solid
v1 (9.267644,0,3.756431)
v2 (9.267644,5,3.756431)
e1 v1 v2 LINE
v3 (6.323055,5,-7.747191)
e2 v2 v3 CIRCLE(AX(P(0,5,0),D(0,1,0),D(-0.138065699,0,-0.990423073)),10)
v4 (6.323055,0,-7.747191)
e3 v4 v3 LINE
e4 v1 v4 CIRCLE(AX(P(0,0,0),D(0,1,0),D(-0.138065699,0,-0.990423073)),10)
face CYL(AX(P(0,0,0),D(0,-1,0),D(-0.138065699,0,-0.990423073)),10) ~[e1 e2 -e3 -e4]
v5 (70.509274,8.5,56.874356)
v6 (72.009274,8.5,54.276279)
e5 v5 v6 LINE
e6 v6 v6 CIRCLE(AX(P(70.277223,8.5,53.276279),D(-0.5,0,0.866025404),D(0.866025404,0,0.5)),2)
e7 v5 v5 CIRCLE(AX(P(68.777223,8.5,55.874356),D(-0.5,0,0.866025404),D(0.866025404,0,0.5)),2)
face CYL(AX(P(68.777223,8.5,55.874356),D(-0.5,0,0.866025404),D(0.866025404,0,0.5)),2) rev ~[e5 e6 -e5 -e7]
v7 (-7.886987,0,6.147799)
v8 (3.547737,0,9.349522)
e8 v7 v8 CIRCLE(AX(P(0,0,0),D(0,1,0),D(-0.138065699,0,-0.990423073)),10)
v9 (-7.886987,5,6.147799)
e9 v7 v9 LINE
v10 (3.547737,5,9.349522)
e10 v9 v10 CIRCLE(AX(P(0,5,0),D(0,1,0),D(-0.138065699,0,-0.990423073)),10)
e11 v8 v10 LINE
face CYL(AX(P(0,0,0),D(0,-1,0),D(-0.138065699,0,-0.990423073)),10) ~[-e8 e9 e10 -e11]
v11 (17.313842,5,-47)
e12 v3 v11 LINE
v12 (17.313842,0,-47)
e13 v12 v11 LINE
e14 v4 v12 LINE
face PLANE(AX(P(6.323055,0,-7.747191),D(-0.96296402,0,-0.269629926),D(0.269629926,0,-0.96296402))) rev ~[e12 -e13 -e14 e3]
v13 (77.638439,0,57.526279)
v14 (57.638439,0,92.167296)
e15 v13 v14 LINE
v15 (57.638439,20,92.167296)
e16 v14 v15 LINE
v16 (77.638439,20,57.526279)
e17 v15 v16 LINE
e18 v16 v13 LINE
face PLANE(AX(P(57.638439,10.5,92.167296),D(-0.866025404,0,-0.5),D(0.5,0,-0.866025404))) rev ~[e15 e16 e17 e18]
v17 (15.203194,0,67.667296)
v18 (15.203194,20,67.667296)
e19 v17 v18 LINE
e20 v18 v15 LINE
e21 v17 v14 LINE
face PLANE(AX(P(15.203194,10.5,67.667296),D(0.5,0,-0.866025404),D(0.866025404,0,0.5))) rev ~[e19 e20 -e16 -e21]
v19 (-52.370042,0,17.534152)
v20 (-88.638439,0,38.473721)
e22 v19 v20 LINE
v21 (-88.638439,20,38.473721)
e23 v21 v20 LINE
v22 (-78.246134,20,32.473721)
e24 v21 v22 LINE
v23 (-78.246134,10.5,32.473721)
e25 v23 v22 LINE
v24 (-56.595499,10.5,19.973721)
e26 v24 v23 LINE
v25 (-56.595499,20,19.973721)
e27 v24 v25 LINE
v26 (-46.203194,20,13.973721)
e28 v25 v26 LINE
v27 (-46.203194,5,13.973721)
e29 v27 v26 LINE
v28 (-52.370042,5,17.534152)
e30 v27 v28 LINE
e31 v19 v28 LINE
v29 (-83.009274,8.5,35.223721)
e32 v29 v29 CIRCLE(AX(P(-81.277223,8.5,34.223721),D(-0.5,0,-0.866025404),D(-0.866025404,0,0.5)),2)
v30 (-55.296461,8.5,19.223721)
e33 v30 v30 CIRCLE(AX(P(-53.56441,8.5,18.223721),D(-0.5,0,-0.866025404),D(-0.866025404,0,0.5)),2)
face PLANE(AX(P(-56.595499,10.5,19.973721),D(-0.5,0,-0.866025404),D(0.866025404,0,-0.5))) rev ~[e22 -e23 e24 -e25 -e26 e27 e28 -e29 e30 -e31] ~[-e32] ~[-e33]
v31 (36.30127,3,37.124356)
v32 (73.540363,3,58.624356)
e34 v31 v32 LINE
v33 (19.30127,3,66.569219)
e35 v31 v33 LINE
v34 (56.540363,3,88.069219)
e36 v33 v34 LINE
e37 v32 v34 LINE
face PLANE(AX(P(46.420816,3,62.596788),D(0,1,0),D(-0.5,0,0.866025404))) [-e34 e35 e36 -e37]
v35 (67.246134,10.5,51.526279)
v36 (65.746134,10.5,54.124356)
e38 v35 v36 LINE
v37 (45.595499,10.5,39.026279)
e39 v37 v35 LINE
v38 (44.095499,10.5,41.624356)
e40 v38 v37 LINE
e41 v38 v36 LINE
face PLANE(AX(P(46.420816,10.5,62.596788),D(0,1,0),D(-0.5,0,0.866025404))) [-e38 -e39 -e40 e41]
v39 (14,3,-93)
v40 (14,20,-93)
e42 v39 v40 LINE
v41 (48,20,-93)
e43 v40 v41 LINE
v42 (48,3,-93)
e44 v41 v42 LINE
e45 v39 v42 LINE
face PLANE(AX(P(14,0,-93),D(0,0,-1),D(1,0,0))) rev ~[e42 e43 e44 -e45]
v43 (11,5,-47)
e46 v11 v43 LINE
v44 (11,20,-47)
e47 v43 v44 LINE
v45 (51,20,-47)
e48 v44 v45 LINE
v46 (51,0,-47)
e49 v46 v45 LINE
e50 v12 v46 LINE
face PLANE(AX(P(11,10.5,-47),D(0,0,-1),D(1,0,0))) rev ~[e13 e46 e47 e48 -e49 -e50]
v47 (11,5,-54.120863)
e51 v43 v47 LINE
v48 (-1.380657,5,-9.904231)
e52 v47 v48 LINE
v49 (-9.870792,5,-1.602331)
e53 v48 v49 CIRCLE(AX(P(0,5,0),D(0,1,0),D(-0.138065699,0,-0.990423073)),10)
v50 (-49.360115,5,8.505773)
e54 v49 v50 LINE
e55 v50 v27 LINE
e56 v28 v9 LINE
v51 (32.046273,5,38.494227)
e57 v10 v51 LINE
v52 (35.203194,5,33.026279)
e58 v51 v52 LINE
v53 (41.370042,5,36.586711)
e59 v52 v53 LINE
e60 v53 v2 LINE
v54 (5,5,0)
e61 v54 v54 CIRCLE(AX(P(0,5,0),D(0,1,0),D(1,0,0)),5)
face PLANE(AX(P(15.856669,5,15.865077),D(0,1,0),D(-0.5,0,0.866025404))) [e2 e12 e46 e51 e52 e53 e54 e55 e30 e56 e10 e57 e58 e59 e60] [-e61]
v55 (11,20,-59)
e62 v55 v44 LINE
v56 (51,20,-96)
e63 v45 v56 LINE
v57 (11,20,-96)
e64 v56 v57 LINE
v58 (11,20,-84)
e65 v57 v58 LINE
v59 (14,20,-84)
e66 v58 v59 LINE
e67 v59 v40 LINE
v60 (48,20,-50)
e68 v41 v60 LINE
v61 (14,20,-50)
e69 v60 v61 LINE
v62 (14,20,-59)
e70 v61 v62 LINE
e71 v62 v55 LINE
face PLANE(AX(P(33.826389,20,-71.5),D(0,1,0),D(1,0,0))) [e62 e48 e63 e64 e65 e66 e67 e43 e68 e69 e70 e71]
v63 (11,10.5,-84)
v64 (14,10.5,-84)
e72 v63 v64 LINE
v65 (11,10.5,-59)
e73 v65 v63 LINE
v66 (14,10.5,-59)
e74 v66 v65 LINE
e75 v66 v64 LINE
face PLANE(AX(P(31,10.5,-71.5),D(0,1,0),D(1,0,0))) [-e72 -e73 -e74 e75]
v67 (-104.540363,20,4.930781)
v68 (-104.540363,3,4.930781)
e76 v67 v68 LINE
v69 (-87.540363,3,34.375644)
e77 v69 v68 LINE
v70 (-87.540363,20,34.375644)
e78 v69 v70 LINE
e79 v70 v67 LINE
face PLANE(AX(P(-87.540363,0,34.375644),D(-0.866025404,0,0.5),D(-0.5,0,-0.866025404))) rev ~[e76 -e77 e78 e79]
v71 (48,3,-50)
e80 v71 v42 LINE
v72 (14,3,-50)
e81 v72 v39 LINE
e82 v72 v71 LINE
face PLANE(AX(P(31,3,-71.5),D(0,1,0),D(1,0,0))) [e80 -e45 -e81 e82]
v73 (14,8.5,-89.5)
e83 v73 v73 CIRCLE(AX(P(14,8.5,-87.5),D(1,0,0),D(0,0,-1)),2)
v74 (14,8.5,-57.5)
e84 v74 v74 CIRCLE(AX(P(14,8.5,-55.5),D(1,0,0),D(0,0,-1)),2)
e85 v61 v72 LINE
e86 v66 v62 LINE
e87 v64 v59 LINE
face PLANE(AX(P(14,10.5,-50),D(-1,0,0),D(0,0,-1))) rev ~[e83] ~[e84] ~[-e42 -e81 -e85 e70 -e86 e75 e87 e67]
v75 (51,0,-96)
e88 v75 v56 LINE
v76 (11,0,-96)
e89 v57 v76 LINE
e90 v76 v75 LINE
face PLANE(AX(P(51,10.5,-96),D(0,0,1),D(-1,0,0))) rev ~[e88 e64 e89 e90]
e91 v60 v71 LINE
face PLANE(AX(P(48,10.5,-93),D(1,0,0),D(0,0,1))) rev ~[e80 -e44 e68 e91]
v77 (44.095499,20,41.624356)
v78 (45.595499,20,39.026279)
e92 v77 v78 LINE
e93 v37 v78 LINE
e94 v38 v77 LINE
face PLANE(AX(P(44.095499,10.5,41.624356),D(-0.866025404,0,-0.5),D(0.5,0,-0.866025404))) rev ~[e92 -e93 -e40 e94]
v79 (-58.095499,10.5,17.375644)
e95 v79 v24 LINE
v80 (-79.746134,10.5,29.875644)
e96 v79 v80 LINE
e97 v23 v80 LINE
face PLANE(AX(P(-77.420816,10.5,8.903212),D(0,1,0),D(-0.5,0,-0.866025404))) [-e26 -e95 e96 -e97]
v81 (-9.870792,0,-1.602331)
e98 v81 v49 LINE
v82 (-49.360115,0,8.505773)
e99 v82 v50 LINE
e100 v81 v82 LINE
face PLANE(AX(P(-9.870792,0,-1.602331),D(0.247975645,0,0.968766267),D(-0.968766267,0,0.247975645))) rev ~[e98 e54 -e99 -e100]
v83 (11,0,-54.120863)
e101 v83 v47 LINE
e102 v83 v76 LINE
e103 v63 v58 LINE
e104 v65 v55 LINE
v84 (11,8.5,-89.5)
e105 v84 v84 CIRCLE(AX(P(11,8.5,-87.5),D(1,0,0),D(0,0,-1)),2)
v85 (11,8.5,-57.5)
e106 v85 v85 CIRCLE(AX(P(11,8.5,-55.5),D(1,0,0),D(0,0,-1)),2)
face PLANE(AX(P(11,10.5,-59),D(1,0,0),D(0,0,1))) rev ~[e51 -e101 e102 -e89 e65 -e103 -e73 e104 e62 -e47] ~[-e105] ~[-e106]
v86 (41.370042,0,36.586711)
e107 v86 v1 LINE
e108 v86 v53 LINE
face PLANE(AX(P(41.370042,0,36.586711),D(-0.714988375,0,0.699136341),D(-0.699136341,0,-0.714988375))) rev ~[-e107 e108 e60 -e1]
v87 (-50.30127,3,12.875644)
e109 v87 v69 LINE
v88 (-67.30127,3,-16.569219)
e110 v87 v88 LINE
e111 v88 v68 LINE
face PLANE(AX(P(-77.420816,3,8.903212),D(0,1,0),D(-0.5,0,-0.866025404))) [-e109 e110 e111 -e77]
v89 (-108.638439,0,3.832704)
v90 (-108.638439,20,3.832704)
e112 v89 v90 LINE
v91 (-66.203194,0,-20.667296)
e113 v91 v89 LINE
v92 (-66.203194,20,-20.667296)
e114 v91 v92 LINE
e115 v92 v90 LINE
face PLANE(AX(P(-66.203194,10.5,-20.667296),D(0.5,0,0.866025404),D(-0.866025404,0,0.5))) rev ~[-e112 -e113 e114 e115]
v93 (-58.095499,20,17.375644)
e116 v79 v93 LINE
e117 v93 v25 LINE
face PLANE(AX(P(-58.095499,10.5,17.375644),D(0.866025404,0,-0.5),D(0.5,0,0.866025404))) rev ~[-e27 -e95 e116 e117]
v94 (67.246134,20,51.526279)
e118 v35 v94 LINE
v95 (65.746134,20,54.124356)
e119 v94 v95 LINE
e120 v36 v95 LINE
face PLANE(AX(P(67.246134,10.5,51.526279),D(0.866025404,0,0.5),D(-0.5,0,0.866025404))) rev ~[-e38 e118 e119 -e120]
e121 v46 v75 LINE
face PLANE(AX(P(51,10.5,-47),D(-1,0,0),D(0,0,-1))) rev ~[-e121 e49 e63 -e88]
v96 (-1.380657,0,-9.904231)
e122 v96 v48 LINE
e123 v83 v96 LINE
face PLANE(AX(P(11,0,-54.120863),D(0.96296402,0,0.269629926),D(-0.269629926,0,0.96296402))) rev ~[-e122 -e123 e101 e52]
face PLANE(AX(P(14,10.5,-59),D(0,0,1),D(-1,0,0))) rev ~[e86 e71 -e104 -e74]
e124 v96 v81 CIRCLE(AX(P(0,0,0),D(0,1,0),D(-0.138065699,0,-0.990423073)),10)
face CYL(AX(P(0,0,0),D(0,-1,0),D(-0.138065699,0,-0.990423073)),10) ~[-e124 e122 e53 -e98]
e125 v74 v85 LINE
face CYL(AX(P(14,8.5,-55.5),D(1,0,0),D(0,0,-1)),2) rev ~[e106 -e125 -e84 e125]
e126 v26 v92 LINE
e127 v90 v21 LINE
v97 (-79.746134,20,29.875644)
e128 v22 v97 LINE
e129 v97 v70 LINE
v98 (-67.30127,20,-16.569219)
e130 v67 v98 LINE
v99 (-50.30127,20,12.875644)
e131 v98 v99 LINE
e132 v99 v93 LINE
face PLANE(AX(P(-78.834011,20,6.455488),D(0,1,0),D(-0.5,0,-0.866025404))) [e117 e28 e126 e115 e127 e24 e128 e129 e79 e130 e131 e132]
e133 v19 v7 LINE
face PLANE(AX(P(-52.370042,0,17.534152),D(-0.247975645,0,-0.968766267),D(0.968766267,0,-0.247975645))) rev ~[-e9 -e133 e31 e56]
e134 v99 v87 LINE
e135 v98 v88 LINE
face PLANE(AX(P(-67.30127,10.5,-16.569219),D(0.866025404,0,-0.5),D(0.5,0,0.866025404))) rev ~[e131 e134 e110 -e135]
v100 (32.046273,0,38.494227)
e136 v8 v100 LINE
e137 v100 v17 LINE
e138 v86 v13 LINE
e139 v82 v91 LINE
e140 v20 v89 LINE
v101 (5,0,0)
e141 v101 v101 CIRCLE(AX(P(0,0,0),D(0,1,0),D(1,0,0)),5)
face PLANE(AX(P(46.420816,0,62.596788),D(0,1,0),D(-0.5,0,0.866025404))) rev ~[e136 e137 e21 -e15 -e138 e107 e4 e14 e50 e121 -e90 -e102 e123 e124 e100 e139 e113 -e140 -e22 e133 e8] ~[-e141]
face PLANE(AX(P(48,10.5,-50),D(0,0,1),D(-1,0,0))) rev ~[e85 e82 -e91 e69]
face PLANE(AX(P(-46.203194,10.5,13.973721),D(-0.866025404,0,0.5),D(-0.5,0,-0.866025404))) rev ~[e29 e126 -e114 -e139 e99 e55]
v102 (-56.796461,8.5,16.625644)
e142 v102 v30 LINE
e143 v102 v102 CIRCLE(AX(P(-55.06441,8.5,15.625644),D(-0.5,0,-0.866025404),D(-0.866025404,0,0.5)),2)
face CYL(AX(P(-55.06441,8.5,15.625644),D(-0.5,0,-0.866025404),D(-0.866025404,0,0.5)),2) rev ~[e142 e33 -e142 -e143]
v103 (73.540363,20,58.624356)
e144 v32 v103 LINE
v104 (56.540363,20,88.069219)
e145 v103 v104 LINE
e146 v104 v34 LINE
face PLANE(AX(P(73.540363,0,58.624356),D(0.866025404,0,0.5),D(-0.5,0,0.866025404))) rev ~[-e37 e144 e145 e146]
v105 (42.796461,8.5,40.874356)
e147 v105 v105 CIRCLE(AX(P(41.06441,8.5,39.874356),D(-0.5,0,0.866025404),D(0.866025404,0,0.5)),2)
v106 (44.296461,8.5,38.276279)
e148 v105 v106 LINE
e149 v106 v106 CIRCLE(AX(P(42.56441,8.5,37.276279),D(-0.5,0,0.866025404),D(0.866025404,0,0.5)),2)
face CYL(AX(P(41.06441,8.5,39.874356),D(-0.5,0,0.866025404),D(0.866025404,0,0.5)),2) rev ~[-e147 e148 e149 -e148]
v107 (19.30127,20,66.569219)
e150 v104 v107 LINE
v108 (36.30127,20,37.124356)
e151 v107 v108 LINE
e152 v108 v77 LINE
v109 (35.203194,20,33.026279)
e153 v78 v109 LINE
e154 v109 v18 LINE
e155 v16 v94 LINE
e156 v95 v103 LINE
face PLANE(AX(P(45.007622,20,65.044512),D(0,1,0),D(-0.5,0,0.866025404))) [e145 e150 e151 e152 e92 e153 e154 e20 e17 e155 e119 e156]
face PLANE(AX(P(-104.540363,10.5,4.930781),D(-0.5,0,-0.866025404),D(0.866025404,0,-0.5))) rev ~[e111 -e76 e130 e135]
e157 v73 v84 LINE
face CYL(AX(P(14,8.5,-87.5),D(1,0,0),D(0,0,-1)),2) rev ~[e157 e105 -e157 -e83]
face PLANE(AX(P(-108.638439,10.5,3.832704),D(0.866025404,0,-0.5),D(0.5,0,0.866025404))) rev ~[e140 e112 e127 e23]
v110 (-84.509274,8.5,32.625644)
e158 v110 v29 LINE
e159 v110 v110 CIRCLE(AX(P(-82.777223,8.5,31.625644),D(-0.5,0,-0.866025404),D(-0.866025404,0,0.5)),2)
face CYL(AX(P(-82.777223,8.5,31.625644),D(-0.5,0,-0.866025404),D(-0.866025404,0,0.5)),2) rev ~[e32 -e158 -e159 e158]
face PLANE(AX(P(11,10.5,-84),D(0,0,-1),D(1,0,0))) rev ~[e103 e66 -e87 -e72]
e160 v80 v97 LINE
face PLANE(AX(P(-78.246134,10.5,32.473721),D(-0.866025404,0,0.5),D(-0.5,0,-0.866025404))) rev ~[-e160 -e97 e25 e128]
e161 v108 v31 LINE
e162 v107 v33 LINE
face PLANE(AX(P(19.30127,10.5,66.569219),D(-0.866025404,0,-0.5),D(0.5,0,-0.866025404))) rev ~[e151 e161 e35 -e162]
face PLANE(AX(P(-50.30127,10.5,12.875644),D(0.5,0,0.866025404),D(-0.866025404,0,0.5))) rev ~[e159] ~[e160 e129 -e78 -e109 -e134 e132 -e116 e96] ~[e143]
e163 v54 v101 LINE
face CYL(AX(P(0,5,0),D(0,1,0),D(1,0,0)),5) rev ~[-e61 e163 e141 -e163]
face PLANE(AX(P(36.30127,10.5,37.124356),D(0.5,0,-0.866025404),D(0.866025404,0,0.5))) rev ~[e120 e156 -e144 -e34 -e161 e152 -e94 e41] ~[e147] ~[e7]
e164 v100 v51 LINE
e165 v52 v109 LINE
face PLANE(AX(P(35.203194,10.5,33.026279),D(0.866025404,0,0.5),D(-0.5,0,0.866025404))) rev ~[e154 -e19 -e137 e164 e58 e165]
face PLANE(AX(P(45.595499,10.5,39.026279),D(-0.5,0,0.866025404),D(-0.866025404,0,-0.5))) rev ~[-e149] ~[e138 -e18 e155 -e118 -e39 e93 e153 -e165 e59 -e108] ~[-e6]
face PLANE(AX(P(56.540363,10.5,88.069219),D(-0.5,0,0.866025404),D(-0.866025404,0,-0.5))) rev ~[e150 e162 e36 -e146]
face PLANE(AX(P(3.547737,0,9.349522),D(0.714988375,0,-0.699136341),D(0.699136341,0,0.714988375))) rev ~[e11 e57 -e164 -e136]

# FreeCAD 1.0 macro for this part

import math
import FreeCAD as App
import Part
import Sketcher
from FreeCAD import Vector

doc = App.newDocument("Part")
body = doc.addObject("PartDesign::Body", "Body")

sketch1 = body.newObject("Sketcher::SketchObject", "Sketch")
sketch1.AttachmentSupport = (doc.getObject("XZ_Plane"), [""])
sketch1.MapMode = "FlatFace"
sketch1.addGeometry([
    Part.LineSegment(Vector(6, -8, 0), Vector(17, -47, 0)),
    Part.LineSegment(Vector(17, -47, 0), Vector(11, -47, 0)),
    Part.LineSegment(Vector(11, -47, 0), Vector(11, -54, 0)),
    Part.LineSegment(Vector(11, -54, 0), Vector(-1, -10, 0)),
    Part.ArcOfCircle(Part.Circle(Vector(0, 0, 0), Vector(0, 0, 1), 10), math.radians(-51), math.radians(262)),
], False)
sketch1.addConstraint([
    Sketcher.Constraint("Coincident", 0, 2, 1, 1),
    Sketcher.Constraint("Coincident", 1, 2, 2, 1),
    Sketcher.Constraint("Coincident", 2, 2, 3, 1),
    Sketcher.Constraint("Coincident", 3, 2, 4, 2),
    Sketcher.Constraint("Coincident", 4, 1, 0, 1),
    Sketcher.Constraint("Horizontal", 1),
    Sketcher.Constraint("Vertical", 2),
    Sketcher.Constraint("Coincident", 4, 3, -1, 1),
    Sketcher.Constraint("Parallel", 0, 3),
    Sketcher.Constraint("Radius", 4, 10.0),
    Sketcher.Constraint("DistanceY", 0, 2, -1, 1, 47.0),
    Sketcher.Constraint("DistanceX", -1, 1, 1, 2, 11.0),
    Sketcher.Constraint("DistanceX", 1, 2, 1, 1, 6.313842),
    Sketcher.Constraint("DistanceX", 3, 2, 0, 2, 18.694499),
    Sketcher.Constraint("Distance", 3, 45.917221),
])
pad1 = body.newObject("PartDesign::Pad", "Pad")
pad1.Profile = sketch1
pad1.Length = 5
pad1.Reversed = True

sketch2 = body.newObject("Sketcher::SketchObject", "Sketch001")
sketch2.AttachmentSupport = (doc.getObject("XZ_Plane"), [""])
sketch2.MapMode = "FlatFace"
sketch2.addGeometry([
    Part.LineSegment(Vector(11, -96, 0), Vector(11, -47, 0)),
    Part.LineSegment(Vector(11, -47, 0), Vector(51, -47, 0)),
    Part.LineSegment(Vector(51, -47, 0), Vector(51, -96, 0)),
    Part.LineSegment(Vector(51, -96, 0), Vector(11, -96, 0)),
    Part.LineSegment(Vector(48, -50, 0), Vector(14, -50, 0)),
    Part.LineSegment(Vector(14, -50, 0), Vector(14, -93, 0)),
    Part.LineSegment(Vector(14, -93, 0), Vector(48, -93, 0)),
    Part.LineSegment(Vector(48, -93, 0), Vector(48, -50, 0)),
], False)
sketch2.addConstraint([
    Sketcher.Constraint("Coincident", 0, 2, 1, 1),
    Sketcher.Constraint("Coincident", 1, 2, 2, 1),
    Sketcher.Constraint("Coincident", 2, 2, 3, 1),
    Sketcher.Constraint("Coincident", 3, 2, 0, 1),
    Sketcher.Constraint("Coincident", 4, 2, 5, 1),
    Sketcher.Constraint("Coincident", 5, 2, 6, 1),
    Sketcher.Constraint("Coincident", 6, 2, 7, 1),
    Sketcher.Constraint("Coincident", 7, 2, 4, 1),
    Sketcher.Constraint("Vertical", 0),
    Sketcher.Constraint("Horizontal", 1),
    Sketcher.Constraint("Vertical", 2),
    Sketcher.Constraint("Horizontal", 3),
    Sketcher.Constraint("Horizontal", 4),
    Sketcher.Constraint("Vertical", 5),
    Sketcher.Constraint("Horizontal", 6),
    Sketcher.Constraint("Vertical", 7),
    Sketcher.Constraint("DistanceX", 1, 1, 1, 2, 40.0),
    Sketcher.Constraint("DistanceX", 4, 2, 4, 1, 34.0),
    Sketcher.Constraint("DistanceY", 0, 1, 0, 2, 49.0),
    Sketcher.Constraint("DistanceY", 5, 2, 5, 1, 43.0),
    Sketcher.Constraint("DistanceX", -1, 1, 0, 2, 11.0),
    Sketcher.Constraint("DistanceY", 0, 2, -1, 1, 47.0),
    Sketcher.Constraint("DistanceX", -1, 1, 4, 2, 14.0),
    Sketcher.Constraint("DistanceY", 4, 2, -1, 1, 50.0),
])
pad2 = body.newObject("PartDesign::Pad", "Pad001")
pad2.Profile = sketch2
pad2.Length = 10.5
pad2.Reversed = True

sketch3 = body.newObject("Sketcher::SketchObject", "Sketch002")
sketch3.AttachmentSupport = (doc.getObject("XZ_Plane"), [""])
sketch3.MapMode = "FlatFace"
sketch3.addGeometry([
    Part.LineSegment(Vector(14, -93, 0), Vector(14, -50, 0)),
    Part.LineSegment(Vector(14, -50, 0), Vector(48, -50, 0)),
    Part.LineSegment(Vector(48, -50, 0), Vector(48, -93, 0)),
    Part.LineSegment(Vector(48, -93, 0), Vector(14, -93, 0)),
], False)
sketch3.addConstraint([
    Sketcher.Constraint("Coincident", 0, 2, 1, 1),
    Sketcher.Constraint("Coincident", 1, 2, 2, 1),
    Sketcher.Constraint("Coincident", 2, 2, 3, 1),
    Sketcher.Constraint("Coincident", 3, 2, 0, 1),
    Sketcher.Constraint("Vertical", 0),
    Sketcher.Constraint("Horizontal", 1),
    Sketcher.Constraint("Vertical", 2),
    Sketcher.Constraint("Horizontal", 3),
    Sketcher.Constraint("DistanceX", 1, 1, 1, 2, 34.0),
    Sketcher.Constraint("DistanceY", 0, 1, 0, 2, 43.0),
    Sketcher.Constraint("DistanceX", -1, 1, 0, 2, 14.0),
    Sketcher.Constraint("DistanceY", 0, 2, -1, 1, 50.0),
])
pad3 = body.newObject("PartDesign::Pad", "Pad002")
pad3.Profile = sketch3
pad3.Length = 3
pad3.Reversed = True

sketch4 = body.newObject("Sketcher::SketchObject", "Sketch003")
sketch4.AttachmentSupport = (doc.getObject("XZ_Plane"), [""])
sketch4.MapMode = "FlatFace"
sketch4.AttachmentOffset = App.Placement(Vector(0, 0, -10.5), App.Rotation())
sketch4.addGeometry([
    Part.LineSegment(Vector(14, -50, 0), Vector(14, -59, 0)),
    Part.LineSegment(Vector(14, -59, 0), Vector(11, -59, 0)),
    Part.LineSegment(Vector(11, -59, 0), Vector(11, -47, 0)),
    Part.LineSegment(Vector(11, -47, 0), Vector(51, -47, 0)),
    Part.LineSegment(Vector(51, -47, 0), Vector(51, -96, 0)),
    Part.LineSegment(Vector(51, -96, 0), Vector(11, -96, 0)),
    Part.LineSegment(Vector(11, -96, 0), Vector(11, -84, 0)),
    Part.LineSegment(Vector(11, -84, 0), Vector(14, -84, 0)),
    Part.LineSegment(Vector(14, -84, 0), Vector(14, -93, 0)),
    Part.LineSegment(Vector(14, -93, 0), Vector(48, -93, 0)),
    Part.LineSegment(Vector(48, -93, 0), Vector(48, -50, 0)),
    Part.LineSegment(Vector(48, -50, 0), Vector(14, -50, 0)),
], False)
sketch4.addConstraint([
    Sketcher.Constraint("Coincident", 0, 2, 1, 1),
    Sketcher.Constraint("Coincident", 1, 2, 2, 1),
    Sketcher.Constraint("Coincident", 2, 2, 3, 1),
    Sketcher.Constraint("Coincident", 3, 2, 4, 1),
    Sketcher.Constraint("Coincident", 4, 2, 5, 1),
    Sketcher.Constraint("Coincident", 5, 2, 6, 1),
    Sketcher.Constraint("Coincident", 6, 2, 7, 1),
    Sketcher.Constraint("Coincident", 7, 2, 8, 1),
    Sketcher.Constraint("Coincident", 8, 2, 9, 1),
    Sketcher.Constraint("Coincident", 9, 2, 10, 1),
    Sketcher.Constraint("Coincident", 10, 2, 11, 1),
    Sketcher.Constraint("Coincident", 11, 2, 0, 1),
    Sketcher.Constraint("Vertical", 0),
    Sketcher.Constraint("Horizontal", 1),
    Sketcher.Constraint("Vertical", 2),
    Sketcher.Constraint("Horizontal", 3),
    Sketcher.Constraint("Vertical", 4),
    Sketcher.Constraint("Horizontal", 5),
    Sketcher.Constraint("Vertical", 6),
    Sketcher.Constraint("Horizontal", 7),
    Sketcher.Constraint("Vertical", 8),
    Sketcher.Constraint("Horizontal", 9),
    Sketcher.Constraint("Vertical", 10),
    Sketcher.Constraint("Horizontal", 11),
    Sketcher.Constraint("Vertical", 2, 2, 5, 2),
    Sketcher.Constraint("Vertical", 0, 2, 7, 2),
    Sketcher.Constraint("Equal", 2, 6),
    Sketcher.Constraint("Equal", 0, 8),
    Sketcher.Constraint("DistanceX", 1, 2, 1, 1, 3.0),
    Sketcher.Constraint("DistanceX", 3, 1, 3, 2, 40.0),
    Sketcher.Constraint("DistanceX", 9, 1, 9, 2, 34.0),
    Sketcher.Constraint("DistanceY", 0, 2, 0, 1, 9.0),
    Sketcher.Constraint("DistanceY", 2, 1, 2, 2, 12.0),
    Sketcher.Constraint("DistanceY", 4, 2, 4, 1, 49.0),
    Sketcher.Constraint("DistanceX", -1, 1, 0, 2, 14.0),
    Sketcher.Constraint("DistanceY", 0, 2, -1, 1, 59.0),
])
pad4 = body.newObject("PartDesign::Pad", "Pad003")
pad4.Profile = sketch4
pad4.Length = 9.5
pad4.Reversed = True

sketch5 = body.newObject("Sketcher::SketchObject", "Sketch004")
sketch5.AttachmentSupport = (doc.getObject("YZ_Plane"), [""])
sketch5.MapMode = "FlatFace"
sketch5.AttachmentOffset = App.Placement(Vector(0, 0, 14), App.Rotation())
sketch5.addGeometry([
    Part.Circle(Vector(8.5, -55.5, 0), Vector(0, 0, 1), 2),
    Part.Circle(Vector(8.5, -87.5, 0), Vector(0, 0, 1), 2),
], False)
sketch5.addConstraint([
    Sketcher.Constraint("Equal", 0, 1),
    Sketcher.Constraint("Vertical", 0, 3, 1, 3),
    Sketcher.Constraint("Diameter", 0, 4.0),
    Sketcher.Constraint("DistanceY", 1, 3, 0, 3, 32.0),
    Sketcher.Constraint("DistanceX", -1, 1, 0, 3, 8.5),
    Sketcher.Constraint("DistanceY", 0, 3, -1, 1, 55.5),
])
pocket1 = body.newObject("PartDesign::Pocket", "Pocket")
pocket1.Profile = sketch5
pocket1.Length = 3
doc.recompute()

polarpattern = body.newObject("PartDesign::PolarPattern", "PolarPattern")
polarpattern.Originals = [pad1, pad2, pad3, pad4, pocket1]
polarpattern.Axis = (doc.getObject("Y_Axis"), [""])
polarpattern.Angle = 360
polarpattern.Occurrences = 3
body.Tip = polarpattern

sketch6 = body.newObject("Sketcher::SketchObject", "Sketch005")
sketch6.AttachmentSupport = (doc.getObject("XZ_Plane"), [""])
sketch6.MapMode = "FlatFace"
sketch6.AttachmentOffset = App.Placement(Vector(0, 0, -5), App.Rotation())
sketch6.addGeometry(Part.Circle(Vector(0, 0, 0), Vector(0, 0, 1), 5), False)
sketch6.addConstraint([
    Sketcher.Constraint("Coincident", 0, 3, -1, 1),
    Sketcher.Constraint("Diameter", 0, 10.0),
])
pocket2 = body.newObject("PartDesign::Pocket", "Pocket001")
pocket2.Profile = sketch6
pocket2.Length = 9.5
pocket2.Reversed = True

doc.recompute()
